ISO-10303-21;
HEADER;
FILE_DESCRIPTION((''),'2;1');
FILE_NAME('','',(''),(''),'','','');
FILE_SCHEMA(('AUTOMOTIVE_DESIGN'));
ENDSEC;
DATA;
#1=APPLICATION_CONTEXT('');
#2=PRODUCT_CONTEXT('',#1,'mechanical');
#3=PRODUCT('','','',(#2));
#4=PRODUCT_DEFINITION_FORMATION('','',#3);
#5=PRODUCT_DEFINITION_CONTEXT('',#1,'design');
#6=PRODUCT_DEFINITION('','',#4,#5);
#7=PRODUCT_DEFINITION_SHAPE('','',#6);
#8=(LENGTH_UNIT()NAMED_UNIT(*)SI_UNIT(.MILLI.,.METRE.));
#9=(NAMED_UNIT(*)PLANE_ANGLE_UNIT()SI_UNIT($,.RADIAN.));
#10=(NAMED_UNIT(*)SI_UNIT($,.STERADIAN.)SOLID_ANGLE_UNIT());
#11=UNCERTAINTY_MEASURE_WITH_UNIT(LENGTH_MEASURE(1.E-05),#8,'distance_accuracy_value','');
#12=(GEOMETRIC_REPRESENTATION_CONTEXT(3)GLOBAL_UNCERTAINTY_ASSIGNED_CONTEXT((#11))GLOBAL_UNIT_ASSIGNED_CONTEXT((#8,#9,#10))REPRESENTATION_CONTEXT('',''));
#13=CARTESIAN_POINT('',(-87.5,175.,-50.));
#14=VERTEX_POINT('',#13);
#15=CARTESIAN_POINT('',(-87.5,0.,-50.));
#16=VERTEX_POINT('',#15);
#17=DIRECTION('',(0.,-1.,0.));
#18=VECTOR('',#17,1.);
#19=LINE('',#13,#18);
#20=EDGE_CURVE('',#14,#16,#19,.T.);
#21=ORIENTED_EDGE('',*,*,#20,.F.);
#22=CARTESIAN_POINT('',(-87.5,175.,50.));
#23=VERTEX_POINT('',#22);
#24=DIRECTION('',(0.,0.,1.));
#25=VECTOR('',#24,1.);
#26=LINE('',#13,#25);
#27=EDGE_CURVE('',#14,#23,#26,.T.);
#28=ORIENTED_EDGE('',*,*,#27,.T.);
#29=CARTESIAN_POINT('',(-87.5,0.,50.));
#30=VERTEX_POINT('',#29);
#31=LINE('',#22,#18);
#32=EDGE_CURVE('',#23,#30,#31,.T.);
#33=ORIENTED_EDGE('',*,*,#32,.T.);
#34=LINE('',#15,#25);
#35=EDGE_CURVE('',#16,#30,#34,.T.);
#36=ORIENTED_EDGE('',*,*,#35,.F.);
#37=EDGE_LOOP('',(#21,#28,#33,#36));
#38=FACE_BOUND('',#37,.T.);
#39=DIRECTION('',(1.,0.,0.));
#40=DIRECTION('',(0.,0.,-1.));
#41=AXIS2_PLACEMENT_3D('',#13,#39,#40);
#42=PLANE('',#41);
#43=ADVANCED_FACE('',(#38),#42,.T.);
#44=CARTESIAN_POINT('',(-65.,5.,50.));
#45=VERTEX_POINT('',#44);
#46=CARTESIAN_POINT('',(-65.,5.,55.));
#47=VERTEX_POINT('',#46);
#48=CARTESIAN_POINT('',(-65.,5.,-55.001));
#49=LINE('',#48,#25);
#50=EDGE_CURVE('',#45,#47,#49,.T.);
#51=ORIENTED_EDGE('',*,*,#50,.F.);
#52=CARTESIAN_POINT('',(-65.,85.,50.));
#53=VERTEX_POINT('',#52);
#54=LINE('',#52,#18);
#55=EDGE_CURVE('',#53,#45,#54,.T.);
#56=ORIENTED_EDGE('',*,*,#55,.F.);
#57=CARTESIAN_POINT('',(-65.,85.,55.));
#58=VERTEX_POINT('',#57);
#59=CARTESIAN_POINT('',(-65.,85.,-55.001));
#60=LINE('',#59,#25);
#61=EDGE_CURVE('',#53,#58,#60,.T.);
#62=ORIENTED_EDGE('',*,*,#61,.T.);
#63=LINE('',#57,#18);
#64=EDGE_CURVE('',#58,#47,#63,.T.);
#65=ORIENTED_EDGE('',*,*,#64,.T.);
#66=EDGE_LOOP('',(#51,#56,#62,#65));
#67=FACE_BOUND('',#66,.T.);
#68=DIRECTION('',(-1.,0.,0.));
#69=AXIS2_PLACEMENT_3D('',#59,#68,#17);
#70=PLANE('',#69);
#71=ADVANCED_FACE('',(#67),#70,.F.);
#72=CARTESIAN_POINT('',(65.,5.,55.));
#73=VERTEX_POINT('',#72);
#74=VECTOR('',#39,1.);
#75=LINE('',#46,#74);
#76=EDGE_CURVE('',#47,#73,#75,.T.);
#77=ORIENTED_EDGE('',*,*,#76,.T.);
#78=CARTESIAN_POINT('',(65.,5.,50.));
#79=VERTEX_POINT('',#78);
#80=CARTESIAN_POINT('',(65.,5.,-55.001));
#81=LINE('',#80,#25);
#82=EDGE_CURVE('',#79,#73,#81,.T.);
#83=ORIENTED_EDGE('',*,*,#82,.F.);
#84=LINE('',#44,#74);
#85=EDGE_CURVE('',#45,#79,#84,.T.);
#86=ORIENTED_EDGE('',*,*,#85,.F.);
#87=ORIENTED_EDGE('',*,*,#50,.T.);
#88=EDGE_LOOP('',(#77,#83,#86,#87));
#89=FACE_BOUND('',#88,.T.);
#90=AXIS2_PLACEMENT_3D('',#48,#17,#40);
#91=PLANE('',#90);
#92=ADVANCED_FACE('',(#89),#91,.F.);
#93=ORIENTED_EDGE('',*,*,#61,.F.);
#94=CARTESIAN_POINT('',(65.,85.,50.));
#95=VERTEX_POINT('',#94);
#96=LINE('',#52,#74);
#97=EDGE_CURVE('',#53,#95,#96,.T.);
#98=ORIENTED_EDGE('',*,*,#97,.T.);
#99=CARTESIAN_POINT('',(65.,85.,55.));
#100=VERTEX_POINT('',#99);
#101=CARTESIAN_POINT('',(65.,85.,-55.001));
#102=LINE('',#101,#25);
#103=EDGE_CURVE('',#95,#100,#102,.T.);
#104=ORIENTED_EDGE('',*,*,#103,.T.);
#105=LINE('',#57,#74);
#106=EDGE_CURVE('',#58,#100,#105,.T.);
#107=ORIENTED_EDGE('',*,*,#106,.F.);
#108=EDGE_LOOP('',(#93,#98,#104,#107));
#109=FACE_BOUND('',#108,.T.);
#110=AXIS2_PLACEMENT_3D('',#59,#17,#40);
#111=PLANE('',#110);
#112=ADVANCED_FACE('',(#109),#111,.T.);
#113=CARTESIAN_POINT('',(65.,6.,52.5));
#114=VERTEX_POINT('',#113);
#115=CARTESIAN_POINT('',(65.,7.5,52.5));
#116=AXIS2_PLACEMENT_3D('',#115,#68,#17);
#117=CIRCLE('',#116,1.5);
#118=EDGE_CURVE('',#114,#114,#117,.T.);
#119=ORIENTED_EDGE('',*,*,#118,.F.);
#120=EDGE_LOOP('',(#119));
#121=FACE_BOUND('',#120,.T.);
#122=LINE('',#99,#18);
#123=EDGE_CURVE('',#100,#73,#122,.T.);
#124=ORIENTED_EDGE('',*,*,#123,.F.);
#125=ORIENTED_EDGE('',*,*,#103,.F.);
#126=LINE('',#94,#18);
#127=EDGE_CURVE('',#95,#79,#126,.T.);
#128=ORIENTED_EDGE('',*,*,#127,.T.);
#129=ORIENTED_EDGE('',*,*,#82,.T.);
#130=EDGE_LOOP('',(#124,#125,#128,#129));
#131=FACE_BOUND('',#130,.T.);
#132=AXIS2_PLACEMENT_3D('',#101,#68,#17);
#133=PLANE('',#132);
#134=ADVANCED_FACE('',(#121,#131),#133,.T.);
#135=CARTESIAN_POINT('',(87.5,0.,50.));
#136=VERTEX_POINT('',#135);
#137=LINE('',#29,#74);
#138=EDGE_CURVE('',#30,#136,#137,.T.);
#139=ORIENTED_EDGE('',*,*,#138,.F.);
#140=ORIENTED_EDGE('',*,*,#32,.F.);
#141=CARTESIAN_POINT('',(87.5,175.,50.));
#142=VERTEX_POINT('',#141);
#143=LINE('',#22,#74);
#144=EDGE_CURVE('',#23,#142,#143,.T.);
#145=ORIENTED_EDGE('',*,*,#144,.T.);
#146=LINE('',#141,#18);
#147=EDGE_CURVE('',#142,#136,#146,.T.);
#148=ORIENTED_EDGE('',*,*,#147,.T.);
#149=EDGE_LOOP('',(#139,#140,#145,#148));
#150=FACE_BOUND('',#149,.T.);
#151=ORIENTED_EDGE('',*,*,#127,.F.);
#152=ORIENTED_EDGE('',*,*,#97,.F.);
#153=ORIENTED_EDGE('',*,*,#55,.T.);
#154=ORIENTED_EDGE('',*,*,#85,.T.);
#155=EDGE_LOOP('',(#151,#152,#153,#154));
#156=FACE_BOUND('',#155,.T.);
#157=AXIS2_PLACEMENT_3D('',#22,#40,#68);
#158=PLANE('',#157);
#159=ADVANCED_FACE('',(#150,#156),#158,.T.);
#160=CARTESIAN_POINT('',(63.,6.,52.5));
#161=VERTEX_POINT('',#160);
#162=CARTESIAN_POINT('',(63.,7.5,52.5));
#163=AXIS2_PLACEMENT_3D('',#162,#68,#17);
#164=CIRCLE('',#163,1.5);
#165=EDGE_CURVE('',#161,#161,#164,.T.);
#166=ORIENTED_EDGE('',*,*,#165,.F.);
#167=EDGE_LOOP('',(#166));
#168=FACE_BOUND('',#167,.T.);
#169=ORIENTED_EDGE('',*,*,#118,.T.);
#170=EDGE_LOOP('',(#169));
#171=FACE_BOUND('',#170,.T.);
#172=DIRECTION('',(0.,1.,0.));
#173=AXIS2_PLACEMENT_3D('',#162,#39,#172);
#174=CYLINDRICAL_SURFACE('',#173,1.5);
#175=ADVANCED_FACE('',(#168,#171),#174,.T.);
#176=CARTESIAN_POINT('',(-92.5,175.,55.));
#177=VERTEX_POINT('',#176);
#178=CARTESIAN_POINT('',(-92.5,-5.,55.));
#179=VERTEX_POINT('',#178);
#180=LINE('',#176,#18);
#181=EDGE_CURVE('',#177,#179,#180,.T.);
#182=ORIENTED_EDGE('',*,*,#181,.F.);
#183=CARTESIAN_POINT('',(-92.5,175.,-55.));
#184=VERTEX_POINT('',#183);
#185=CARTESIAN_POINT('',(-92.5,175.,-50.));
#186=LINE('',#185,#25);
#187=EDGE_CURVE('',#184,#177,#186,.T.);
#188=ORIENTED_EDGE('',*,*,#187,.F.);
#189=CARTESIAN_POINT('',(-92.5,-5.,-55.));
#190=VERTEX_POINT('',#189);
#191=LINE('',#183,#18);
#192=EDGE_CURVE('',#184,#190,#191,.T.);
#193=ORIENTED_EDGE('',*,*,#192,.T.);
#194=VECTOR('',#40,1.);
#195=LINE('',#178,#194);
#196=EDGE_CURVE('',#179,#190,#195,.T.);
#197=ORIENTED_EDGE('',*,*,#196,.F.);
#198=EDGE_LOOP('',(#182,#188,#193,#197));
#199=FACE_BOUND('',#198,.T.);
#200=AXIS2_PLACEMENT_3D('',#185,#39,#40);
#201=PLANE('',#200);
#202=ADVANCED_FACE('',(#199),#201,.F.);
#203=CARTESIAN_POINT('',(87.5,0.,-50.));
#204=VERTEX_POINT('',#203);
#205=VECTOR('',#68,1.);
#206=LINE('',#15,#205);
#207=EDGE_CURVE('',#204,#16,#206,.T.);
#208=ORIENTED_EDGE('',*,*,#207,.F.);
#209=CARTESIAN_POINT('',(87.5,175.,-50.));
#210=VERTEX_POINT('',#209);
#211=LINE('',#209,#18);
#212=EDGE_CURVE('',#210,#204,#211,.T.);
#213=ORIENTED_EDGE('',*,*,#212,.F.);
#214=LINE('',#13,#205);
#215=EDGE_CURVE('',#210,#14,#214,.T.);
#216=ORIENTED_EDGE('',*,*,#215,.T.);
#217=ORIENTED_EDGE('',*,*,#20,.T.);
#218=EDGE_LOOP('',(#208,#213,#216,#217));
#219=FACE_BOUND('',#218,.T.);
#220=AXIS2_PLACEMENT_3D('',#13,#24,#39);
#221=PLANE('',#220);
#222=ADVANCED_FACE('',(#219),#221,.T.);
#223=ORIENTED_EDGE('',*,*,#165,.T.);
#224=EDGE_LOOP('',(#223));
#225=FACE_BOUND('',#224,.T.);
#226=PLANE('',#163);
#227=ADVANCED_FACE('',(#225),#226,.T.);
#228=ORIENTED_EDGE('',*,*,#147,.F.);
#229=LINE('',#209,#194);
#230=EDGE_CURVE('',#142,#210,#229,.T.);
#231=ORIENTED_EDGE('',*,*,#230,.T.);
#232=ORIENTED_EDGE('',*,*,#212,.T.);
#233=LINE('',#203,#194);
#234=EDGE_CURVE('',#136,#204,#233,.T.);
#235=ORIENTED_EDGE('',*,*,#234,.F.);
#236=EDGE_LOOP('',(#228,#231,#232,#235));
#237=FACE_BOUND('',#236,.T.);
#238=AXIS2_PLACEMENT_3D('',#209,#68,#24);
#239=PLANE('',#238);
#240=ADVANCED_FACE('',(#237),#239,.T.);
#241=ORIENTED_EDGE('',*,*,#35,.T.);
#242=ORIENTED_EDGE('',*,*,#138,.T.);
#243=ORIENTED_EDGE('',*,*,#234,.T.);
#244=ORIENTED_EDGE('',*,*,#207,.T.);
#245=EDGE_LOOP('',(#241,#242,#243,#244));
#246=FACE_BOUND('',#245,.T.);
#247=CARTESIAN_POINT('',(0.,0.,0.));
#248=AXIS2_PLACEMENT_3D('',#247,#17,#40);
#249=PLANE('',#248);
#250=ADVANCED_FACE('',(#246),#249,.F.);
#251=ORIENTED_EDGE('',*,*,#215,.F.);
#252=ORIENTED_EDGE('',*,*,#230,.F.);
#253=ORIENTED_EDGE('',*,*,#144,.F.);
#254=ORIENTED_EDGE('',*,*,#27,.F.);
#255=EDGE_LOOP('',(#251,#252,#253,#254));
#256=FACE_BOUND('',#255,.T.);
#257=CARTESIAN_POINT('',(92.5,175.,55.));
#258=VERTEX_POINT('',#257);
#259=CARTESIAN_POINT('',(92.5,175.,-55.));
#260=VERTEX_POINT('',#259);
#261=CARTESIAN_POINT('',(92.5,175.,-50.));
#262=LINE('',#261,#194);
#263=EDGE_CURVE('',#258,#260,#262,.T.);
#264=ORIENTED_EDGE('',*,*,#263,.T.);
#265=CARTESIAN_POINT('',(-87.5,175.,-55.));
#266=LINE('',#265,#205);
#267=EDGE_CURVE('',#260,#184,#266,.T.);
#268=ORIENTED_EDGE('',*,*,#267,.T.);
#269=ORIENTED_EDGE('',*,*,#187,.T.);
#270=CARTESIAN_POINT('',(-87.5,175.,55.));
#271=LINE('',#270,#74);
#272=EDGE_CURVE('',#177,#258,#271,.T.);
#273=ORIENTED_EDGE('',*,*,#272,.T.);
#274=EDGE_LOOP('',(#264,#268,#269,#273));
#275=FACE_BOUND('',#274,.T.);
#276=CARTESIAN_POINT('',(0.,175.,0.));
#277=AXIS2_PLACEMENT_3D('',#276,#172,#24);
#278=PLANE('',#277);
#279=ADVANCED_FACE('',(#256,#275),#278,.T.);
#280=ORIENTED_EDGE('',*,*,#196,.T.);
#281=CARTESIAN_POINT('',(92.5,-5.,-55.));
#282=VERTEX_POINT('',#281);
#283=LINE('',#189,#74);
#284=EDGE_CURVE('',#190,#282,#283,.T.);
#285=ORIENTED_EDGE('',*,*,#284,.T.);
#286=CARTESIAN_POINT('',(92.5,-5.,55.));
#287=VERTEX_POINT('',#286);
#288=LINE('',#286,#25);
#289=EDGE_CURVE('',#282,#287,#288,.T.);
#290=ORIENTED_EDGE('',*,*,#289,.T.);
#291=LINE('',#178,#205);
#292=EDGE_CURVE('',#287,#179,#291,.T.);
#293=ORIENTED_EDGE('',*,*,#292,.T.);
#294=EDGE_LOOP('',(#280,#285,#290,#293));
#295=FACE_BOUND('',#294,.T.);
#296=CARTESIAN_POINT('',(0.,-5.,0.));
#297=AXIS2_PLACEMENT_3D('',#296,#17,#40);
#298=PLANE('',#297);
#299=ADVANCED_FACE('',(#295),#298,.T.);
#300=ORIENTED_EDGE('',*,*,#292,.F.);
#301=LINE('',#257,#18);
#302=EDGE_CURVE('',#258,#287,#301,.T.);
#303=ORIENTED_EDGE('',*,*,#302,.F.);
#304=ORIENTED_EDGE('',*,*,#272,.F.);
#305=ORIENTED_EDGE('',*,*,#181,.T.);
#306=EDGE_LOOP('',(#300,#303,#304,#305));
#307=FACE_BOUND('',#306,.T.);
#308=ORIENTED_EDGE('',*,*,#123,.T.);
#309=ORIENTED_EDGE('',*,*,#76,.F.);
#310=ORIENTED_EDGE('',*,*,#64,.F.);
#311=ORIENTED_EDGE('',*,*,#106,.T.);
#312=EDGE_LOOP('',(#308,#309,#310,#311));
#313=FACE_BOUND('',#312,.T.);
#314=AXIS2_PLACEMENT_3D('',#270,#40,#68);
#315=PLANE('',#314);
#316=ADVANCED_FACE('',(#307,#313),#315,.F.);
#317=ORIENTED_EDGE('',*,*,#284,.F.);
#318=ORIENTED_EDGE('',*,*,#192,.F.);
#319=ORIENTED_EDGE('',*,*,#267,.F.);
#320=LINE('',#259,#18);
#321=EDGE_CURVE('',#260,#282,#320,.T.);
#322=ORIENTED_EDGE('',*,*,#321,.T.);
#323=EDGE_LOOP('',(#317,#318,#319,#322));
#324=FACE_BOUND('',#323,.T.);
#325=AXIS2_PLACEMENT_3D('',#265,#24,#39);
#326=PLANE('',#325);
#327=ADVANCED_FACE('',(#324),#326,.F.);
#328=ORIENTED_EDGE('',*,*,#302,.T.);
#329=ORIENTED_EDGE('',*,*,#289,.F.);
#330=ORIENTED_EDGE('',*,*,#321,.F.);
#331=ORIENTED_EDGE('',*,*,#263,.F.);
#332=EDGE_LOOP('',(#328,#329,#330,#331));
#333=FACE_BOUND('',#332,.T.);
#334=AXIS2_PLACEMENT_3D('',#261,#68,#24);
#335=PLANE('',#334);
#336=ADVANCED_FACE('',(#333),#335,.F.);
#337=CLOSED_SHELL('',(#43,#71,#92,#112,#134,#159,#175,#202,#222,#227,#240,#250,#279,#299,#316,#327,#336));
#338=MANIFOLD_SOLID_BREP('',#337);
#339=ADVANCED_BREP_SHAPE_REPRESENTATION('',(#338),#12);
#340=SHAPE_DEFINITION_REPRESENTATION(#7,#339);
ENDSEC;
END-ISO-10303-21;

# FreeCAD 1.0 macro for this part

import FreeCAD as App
import Part
import Sketcher

doc = App.newDocument("Part")
body = doc.addObject("PartDesign::Body", "Body")

sketch1 = doc.addObject("Sketcher::SketchObject", "Sketch")
body.addObject(sketch1)
sketch1.AttachmentSupport = (doc.XZ_Plane, [""])
sketch1.MapMode = "FlatFace"
sketch1.addGeometry([
    Part.LineSegment(App.Vector(-92.5, -55, 0), App.Vector(-92.5, 55, 0)),
    Part.LineSegment(App.Vector(-92.5, 55, 0), App.Vector(92.5, 55, 0)),
    Part.LineSegment(App.Vector(92.5, 55, 0), App.Vector(92.5, -55, 0)),
    Part.LineSegment(App.Vector(92.5, -55, 0), App.Vector(-92.5, -55, 0)),
    Part.LineSegment(App.Vector(87.5, 50, 0), App.Vector(-87.5, 50, 0)),
    Part.LineSegment(App.Vector(-87.5, 50, 0), App.Vector(-87.5, -50, 0)),
    Part.LineSegment(App.Vector(-87.5, -50, 0), App.Vector(87.5, -50, 0)),
    Part.LineSegment(App.Vector(87.5, -50, 0), App.Vector(87.5, 50, 0)),
], False)
sketch1.addConstraint([
    Sketcher.Constraint("Coincident", 0, 2, 1, 1),
    Sketcher.Constraint("Coincident", 1, 2, 2, 1),
    Sketcher.Constraint("Coincident", 2, 2, 3, 1),
    Sketcher.Constraint("Coincident", 3, 2, 0, 1),
    Sketcher.Constraint("Coincident", 4, 2, 5, 1),
    Sketcher.Constraint("Coincident", 5, 2, 6, 1),
    Sketcher.Constraint("Coincident", 6, 2, 7, 1),
    Sketcher.Constraint("Coincident", 7, 2, 4, 1),
    Sketcher.Constraint("Vertical", 0),
    Sketcher.Constraint("Horizontal", 1),
    Sketcher.Constraint("Vertical", 2),
    Sketcher.Constraint("Horizontal", 3),
    Sketcher.Constraint("Horizontal", 4),
    Sketcher.Constraint("Vertical", 5),
    Sketcher.Constraint("Horizontal", 6),
    Sketcher.Constraint("Vertical", 7),
    Sketcher.Constraint("Symmetric", 0, 2, 2, 2, -1, 1),
    Sketcher.Constraint("Symmetric", 4, 2, 6, 2, -1, 1),
    Sketcher.Constraint("DistanceX", 1, 1, 1, 2, 185.0),
    Sketcher.Constraint("DistanceX", 4, 2, 4, 1, 175.0),
    Sketcher.Constraint("DistanceY", 0, 1, 0, 2, 110.0),
    Sketcher.Constraint("DistanceY", 5, 2, 5, 1, 100.0),
])
pad1 = doc.addObject("PartDesign::Pad", "Pad")
body.addObject(pad1)
pad1.Profile = sketch1
pad1.Length = 175
pad1.Reversed = True

sketch2 = doc.addObject("Sketcher::SketchObject", "Sketch001")
body.addObject(sketch2)
sketch2.AttachmentSupport = (doc.XZ_Plane, [""])
sketch2.MapMode = "FlatFace"
sketch2.addGeometry([
    Part.LineSegment(App.Vector(-92.5, 55, 0), App.Vector(-92.5, -55, 0)),
    Part.LineSegment(App.Vector(-92.5, -55, 0), App.Vector(92.5, -55, 0)),
    Part.LineSegment(App.Vector(92.5, -55, 0), App.Vector(92.5, 55, 0)),
    Part.LineSegment(App.Vector(92.5, 55, 0), App.Vector(-92.5, 55, 0)),
], False)
sketch2.addConstraint([
    Sketcher.Constraint("Coincident", 0, 2, 1, 1),
    Sketcher.Constraint("Coincident", 1, 2, 2, 1),
    Sketcher.Constraint("Coincident", 2, 2, 3, 1),
    Sketcher.Constraint("Coincident", 3, 2, 0, 1),
    Sketcher.Constraint("Vertical", 0),
    Sketcher.Constraint("Horizontal", 1),
    Sketcher.Constraint("Vertical", 2),
    Sketcher.Constraint("Horizontal", 3),
    Sketcher.Constraint("Symmetric", 0, 2, 2, 2, -1, 1),
    Sketcher.Constraint("DistanceX", 1, 1, 1, 2, 185.0),
    Sketcher.Constraint("DistanceY", 0, 2, 0, 1, 110.0),
])
pad2 = doc.addObject("PartDesign::Pad", "Pad001")
body.addObject(pad2)
pad2.Profile = sketch2
pad2.Length = 5

sketch3 = doc.addObject("Sketcher::SketchObject", "Sketch002")
body.addObject(sketch3)
sketch3.AttachmentSupport = (doc.XY_Plane, [""])
sketch3.MapMode = "FlatFace"
sketch3.AttachmentOffset = App.Placement(App.Vector(0, 0, 55), App.Rotation())
sketch3.addGeometry([
    Part.LineSegment(App.Vector(-65, 85, 0), App.Vector(-65, 5, 0)),
    Part.LineSegment(App.Vector(-65, 5, 0), App.Vector(65, 5, 0)),
    Part.LineSegment(App.Vector(65, 5, 0), App.Vector(65, 85, 0)),
    Part.LineSegment(App.Vector(65, 85, 0), App.Vector(-65, 85, 0)),
], False)
sketch3.addConstraint([
    Sketcher.Constraint("Coincident", 0, 2, 1, 1),
    Sketcher.Constraint("Coincident", 1, 2, 2, 1),
    Sketcher.Constraint("Coincident", 2, 2, 3, 1),
    Sketcher.Constraint("Coincident", 3, 2, 0, 1),
    Sketcher.Constraint("Vertical", 0),
    Sketcher.Constraint("Horizontal", 1),
    Sketcher.Constraint("Vertical", 2),
    Sketcher.Constraint("Horizontal", 3),
    Sketcher.Constraint("DistanceX", 1, 1, 1, 2, 130.0),
    Sketcher.Constraint("DistanceY", 0, 2, 0, 1, 80.0),
    Sketcher.Constraint("DistanceX", 0, 2, -1, 1, 65.0),
    Sketcher.Constraint("DistanceY", -1, 1, 0, 2, 5.0),
])
pocket1 = doc.addObject("PartDesign::Pocket", "Pocket")
body.addObject(pocket1)
pocket1.Profile = sketch3
pocket1.Type = "UpToFirst"

sketch4 = doc.addObject("Sketcher::SketchObject", "Sketch003")
body.addObject(sketch4)
sketch4.AttachmentSupport = (doc.YZ_Plane, [""])
sketch4.MapMode = "FlatFace"
sketch4.AttachmentOffset = App.Placement(App.Vector(0, 0, 65), App.Rotation())
sketch4.addGeometry(Part.Circle(App.Vector(7.5, 52.5, 0), App.Vector(0, 0, 1), 1.5), False)
sketch4.addConstraint([
    Sketcher.Constraint("Diameter", 0, 3.0),
    Sketcher.Constraint("DistanceX", -1, 1, 0, 3, 7.5),
    Sketcher.Constraint("DistanceY", -1, 1, 0, 3, 52.5),
])
pad3 = doc.addObject("PartDesign::Pad", "Pad002")
body.addObject(pad3)
pad3.Profile = sketch4
pad3.Length = 2
pad3.Reversed = True

doc.recompute()
